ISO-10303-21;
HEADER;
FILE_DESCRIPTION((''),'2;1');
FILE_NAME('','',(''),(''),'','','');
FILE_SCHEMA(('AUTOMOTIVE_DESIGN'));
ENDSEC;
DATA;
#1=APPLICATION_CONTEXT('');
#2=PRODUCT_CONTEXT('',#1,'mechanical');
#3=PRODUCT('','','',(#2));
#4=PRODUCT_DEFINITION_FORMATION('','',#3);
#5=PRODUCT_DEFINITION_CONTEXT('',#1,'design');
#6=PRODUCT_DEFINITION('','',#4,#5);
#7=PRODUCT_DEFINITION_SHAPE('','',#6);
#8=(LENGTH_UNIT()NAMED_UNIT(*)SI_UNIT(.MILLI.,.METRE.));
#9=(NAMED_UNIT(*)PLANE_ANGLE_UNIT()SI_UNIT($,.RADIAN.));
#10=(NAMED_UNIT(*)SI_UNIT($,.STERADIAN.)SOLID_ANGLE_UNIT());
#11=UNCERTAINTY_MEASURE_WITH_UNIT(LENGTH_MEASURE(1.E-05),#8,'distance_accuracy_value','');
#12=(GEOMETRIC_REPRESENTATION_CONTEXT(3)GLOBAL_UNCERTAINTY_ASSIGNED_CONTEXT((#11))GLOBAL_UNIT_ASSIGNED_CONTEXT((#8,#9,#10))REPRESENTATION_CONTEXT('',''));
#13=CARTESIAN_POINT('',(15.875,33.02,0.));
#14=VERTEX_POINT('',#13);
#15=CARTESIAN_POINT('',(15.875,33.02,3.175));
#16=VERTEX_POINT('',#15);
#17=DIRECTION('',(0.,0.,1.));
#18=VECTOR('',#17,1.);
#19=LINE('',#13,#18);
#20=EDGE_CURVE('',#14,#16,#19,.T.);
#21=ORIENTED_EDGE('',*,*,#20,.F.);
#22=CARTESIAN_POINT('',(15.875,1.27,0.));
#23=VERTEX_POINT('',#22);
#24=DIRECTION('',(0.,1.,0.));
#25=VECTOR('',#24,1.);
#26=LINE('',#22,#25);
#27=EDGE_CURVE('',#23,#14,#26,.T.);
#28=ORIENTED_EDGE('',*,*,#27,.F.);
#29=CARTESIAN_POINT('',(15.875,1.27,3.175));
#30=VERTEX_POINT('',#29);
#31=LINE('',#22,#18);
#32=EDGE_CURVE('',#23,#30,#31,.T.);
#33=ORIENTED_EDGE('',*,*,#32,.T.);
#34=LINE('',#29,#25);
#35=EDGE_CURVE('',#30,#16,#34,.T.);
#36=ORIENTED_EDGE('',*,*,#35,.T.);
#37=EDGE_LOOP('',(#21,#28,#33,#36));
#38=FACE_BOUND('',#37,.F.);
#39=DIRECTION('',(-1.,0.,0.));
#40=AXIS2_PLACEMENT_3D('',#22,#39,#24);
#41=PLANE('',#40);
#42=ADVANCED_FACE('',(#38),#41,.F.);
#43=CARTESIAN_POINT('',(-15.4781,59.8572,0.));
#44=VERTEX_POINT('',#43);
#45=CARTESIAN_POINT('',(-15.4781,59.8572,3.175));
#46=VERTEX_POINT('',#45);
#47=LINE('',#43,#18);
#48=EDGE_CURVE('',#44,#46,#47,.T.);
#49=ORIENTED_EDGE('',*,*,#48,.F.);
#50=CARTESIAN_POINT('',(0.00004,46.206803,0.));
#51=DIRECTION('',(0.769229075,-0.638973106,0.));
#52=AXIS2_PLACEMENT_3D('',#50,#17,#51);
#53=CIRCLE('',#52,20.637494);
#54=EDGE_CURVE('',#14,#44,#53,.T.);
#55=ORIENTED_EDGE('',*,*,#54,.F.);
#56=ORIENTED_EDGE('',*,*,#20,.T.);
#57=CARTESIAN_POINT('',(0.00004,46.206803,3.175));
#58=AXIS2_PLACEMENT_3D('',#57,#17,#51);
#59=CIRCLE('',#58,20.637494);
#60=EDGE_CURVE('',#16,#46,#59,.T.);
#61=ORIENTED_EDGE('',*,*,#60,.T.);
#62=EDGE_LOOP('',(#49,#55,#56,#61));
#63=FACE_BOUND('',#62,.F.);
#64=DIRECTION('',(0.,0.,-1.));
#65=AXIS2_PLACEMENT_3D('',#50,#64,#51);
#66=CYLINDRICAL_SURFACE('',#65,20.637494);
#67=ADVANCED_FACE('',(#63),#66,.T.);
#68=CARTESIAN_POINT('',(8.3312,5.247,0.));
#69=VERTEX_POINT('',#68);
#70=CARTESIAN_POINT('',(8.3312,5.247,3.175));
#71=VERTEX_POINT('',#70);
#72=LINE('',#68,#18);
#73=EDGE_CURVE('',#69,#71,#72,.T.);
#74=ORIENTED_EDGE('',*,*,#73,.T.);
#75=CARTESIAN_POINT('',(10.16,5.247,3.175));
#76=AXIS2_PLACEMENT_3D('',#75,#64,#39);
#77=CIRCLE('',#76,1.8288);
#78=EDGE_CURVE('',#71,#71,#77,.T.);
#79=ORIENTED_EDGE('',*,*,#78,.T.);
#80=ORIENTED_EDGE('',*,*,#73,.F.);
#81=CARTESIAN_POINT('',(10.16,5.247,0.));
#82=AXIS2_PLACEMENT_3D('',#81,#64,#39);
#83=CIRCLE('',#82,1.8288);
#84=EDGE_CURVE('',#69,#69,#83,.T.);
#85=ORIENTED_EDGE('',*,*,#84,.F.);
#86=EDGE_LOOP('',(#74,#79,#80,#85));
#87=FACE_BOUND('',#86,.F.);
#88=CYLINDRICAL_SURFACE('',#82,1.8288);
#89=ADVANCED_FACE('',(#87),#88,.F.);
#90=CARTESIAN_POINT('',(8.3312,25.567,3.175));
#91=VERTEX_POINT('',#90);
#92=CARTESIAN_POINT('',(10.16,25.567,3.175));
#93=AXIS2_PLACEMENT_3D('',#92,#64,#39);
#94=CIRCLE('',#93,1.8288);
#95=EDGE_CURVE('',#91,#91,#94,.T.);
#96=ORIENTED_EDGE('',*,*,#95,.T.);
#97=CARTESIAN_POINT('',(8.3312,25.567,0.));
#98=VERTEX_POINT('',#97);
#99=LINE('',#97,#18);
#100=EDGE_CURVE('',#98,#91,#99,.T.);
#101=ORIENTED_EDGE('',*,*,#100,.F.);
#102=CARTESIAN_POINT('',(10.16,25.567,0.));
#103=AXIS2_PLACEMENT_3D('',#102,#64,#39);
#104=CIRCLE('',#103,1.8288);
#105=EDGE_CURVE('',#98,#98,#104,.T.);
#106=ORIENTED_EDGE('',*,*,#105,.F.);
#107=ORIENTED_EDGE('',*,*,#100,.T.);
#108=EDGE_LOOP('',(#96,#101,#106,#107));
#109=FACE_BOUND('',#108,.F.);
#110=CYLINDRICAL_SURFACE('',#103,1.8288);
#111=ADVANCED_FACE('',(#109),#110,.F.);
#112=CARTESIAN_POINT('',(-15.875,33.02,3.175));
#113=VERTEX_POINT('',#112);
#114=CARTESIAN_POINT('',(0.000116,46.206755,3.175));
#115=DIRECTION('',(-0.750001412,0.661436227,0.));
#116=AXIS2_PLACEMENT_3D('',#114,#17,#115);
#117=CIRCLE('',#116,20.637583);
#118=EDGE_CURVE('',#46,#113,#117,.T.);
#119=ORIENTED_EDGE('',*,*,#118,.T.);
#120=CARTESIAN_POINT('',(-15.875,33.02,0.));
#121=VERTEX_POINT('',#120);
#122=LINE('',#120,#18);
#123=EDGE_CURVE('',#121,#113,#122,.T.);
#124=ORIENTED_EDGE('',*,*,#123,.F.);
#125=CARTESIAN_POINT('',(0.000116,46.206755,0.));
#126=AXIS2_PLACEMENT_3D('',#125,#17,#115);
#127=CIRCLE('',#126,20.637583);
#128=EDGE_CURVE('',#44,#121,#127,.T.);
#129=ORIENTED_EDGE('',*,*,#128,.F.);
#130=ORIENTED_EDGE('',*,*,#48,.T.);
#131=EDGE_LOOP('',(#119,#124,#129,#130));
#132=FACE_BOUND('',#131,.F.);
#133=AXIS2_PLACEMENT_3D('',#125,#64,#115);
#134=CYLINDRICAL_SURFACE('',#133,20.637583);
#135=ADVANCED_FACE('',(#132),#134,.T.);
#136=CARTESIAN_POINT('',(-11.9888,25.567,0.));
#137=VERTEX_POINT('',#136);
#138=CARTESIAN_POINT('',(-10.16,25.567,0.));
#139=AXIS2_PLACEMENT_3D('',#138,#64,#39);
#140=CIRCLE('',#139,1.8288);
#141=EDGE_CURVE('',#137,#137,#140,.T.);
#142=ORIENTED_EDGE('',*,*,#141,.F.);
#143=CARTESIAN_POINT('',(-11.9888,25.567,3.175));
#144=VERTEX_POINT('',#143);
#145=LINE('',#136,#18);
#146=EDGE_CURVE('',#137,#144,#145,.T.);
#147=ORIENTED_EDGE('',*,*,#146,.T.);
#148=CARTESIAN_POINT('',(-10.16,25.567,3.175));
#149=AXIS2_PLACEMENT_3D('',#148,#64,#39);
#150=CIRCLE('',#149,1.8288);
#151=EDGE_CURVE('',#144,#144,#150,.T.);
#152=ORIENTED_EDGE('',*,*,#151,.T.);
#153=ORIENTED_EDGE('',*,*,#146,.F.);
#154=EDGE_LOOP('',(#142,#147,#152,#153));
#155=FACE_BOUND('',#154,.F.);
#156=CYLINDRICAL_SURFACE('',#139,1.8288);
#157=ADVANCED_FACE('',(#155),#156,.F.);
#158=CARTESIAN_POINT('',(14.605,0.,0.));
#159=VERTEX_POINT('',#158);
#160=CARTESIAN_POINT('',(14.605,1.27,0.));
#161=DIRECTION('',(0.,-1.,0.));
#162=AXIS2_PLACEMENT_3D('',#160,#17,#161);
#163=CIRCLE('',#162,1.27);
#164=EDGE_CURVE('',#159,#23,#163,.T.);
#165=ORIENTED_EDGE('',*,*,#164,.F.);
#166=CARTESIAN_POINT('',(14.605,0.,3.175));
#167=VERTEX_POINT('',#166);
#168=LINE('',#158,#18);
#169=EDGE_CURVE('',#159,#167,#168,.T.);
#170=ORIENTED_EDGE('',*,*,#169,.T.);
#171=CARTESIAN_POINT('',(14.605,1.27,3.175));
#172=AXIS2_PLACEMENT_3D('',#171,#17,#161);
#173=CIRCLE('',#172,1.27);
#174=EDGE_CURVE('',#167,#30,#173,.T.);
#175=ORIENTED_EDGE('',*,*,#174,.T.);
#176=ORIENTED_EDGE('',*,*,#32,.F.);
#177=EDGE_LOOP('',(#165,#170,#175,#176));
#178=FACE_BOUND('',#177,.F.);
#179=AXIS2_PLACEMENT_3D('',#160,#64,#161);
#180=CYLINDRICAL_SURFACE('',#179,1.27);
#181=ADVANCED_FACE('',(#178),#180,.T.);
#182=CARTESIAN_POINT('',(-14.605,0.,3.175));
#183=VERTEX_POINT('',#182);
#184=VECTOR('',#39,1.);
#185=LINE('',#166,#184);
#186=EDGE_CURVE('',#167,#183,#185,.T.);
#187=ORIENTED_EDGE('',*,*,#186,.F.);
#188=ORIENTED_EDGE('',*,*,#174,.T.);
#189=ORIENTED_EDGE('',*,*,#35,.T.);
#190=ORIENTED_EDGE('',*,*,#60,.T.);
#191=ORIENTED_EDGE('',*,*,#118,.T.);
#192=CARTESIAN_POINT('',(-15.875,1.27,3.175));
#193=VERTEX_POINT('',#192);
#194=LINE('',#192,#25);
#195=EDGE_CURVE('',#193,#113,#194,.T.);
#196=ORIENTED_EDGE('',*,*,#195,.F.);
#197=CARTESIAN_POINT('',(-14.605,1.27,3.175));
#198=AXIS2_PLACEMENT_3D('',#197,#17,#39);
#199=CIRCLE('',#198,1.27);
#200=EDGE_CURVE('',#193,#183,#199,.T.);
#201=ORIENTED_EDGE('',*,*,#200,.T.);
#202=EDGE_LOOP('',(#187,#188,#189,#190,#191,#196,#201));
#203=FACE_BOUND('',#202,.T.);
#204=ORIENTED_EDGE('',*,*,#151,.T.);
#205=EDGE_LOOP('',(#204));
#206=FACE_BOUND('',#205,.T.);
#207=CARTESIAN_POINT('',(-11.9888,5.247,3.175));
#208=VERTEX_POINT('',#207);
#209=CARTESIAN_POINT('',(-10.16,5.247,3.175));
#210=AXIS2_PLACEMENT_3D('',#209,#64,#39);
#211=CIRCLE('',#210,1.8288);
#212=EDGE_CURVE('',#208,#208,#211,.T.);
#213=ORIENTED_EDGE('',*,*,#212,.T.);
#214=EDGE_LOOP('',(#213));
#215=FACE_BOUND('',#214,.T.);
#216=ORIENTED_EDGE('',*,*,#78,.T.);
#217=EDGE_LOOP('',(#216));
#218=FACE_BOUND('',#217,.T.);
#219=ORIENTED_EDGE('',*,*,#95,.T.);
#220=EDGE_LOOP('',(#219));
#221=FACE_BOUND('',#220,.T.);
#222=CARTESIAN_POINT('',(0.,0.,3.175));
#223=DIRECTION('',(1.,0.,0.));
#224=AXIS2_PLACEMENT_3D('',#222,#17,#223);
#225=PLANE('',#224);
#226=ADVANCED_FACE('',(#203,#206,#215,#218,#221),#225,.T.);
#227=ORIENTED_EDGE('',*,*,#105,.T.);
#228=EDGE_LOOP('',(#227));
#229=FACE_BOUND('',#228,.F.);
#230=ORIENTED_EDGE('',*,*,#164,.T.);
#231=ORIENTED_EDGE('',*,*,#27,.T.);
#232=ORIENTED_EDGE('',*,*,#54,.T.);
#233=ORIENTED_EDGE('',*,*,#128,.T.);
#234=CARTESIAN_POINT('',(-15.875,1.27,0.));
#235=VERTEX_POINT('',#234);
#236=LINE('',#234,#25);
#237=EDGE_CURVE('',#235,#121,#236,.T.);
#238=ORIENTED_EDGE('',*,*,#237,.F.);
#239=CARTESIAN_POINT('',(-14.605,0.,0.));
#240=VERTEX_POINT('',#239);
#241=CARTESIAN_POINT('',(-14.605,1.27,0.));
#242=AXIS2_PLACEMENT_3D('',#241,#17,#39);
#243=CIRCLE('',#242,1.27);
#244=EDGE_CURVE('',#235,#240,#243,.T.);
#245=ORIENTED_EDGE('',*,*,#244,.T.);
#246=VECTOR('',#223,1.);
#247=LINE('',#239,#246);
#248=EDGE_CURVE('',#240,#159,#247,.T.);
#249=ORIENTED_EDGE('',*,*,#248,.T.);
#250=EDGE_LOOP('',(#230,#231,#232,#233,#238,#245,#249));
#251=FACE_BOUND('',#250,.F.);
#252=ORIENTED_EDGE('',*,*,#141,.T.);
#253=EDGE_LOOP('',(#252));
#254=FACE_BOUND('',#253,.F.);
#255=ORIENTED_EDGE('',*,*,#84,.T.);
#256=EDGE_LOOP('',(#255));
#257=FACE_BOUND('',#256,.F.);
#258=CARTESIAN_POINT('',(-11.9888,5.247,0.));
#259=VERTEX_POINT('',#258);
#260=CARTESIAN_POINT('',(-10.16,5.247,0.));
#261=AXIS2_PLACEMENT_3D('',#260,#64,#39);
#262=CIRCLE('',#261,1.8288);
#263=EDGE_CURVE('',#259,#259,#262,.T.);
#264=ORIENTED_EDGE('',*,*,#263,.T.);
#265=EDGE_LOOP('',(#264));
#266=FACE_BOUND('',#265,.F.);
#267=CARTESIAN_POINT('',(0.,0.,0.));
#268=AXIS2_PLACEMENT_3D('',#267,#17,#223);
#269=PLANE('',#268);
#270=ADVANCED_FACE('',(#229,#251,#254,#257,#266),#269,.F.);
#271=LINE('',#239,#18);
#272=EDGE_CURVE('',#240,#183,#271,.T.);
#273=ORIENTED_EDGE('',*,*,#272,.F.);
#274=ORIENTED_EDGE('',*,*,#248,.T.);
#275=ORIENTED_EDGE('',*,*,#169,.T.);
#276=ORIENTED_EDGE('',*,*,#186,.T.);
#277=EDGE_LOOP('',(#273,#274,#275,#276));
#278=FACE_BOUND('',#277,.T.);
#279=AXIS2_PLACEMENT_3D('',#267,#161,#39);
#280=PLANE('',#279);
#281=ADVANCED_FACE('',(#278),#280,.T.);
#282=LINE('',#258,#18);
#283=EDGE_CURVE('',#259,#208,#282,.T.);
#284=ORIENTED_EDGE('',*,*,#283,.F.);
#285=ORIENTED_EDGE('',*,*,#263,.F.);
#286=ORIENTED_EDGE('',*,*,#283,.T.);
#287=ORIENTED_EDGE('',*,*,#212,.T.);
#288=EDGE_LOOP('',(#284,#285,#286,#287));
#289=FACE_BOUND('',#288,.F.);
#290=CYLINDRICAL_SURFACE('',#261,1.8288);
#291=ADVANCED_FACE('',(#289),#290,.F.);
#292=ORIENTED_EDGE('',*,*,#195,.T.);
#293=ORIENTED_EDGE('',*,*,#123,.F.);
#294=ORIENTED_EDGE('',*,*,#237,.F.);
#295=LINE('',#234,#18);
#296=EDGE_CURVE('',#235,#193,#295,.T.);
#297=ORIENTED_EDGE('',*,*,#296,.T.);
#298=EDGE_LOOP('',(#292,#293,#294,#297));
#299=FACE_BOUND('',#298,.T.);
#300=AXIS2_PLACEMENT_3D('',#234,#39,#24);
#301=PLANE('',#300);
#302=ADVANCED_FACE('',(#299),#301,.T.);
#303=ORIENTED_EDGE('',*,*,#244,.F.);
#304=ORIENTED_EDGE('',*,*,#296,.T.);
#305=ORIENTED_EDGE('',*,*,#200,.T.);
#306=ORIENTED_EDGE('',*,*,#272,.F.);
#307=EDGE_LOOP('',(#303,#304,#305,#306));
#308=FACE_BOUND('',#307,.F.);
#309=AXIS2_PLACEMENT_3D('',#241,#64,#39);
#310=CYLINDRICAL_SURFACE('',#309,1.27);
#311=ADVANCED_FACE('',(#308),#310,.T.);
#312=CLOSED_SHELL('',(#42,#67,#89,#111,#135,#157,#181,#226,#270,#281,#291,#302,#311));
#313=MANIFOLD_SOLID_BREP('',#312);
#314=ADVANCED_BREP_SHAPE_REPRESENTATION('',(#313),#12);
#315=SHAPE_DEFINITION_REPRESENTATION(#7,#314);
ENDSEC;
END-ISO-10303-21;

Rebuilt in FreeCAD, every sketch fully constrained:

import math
import FreeCAD as App
import Part
import Sketcher
from FreeCAD import Vector
Q = App.Units.Quantity

doc = App.newDocument("Part")
body = doc.addObject("PartDesign::Body", "Body")

sketch1 = doc.addObject("Sketcher::SketchObject", "Sketch")
body.addObject(sketch1)
sketch1.AttachmentSupport = (doc.XY_Plane, [""])
sketch1.MapMode = "FlatFace"
sketch1.addGeometry([
    Part.LineSegment(Vector(-14.6, 0, 0), Vector(14.6, 0, 0)),
    Part.ArcOfCircle(Part.Circle(Vector(14.6, 1.3, 0), Vector(0, 0, 1), 1.3), math.radians(-90), math.radians(0)),
    Part.LineSegment(Vector(15.9, 1.3, 0), Vector(15.9, 33, 0)),
    Part.ArcOfCircle(Part.Circle(Vector(0, 46.2, 0), Vector(0, 0, 1), 20.6), math.radians(-40), math.radians(139)),
    Part.ArcOfCircle(Part.Circle(Vector(0, 46.2, 0), Vector(0, 0, 1), 20.6), math.radians(139), math.radians(220)),
    Part.LineSegment(Vector(-15.9, 33, 0), Vector(-15.9, 1.3, 0)),
    Part.ArcOfCircle(Part.Circle(Vector(-14.6, 1.3, 0), Vector(0, 0, 1), 1.3), math.radians(180), math.radians(270)),
], False)
sketch1.addConstraint([
    Sketcher.Constraint("Tangent", 0, 2, 1, 1),
    Sketcher.Constraint("Tangent", 1, 2, 2, 1),
    Sketcher.Constraint("Coincident", 2, 2, 3, 1),
    Sketcher.Constraint("Tangent", 3, 2, 4, 1),
    Sketcher.Constraint("Coincident", 4, 2, 5, 1),
    Sketcher.Constraint("Tangent", 5, 2, 6, 1),
    Sketcher.Constraint("Tangent", 6, 2, 0, 1),
    Sketcher.Constraint("Horizontal", 0),
    Sketcher.Constraint("Vertical", 2),
    Sketcher.Constraint("Vertical", 5),
    Sketcher.Constraint("Equal", 3, 4),
    Sketcher.Constraint("Equal", 1, 6),
    Sketcher.Constraint("Symmetric", 0, 2, 6, 2, -1, 1),
    Sketcher.Constraint("PointOnObject", 3, 3, -2),
    Sketcher.Constraint("Radius", 1, Q("0.05 in")),
    Sketcher.Constraint("Radius", 3, Q("0.8125 in")),
    Sketcher.Constraint("DistanceY", 2, 1, 2, 2, Q("1.25 in")),
    Sketcher.Constraint("DistanceX", 4, 2, 2, 2, Q("1.25 in")),
    Sketcher.Constraint("DistanceX", 3, 2, -1, 1, Q("0.6093701 in")),
])
pad1 = doc.addObject("PartDesign::Pad", "Pad")
body.addObject(pad1)
pad1.Profile = sketch1
pad1.Length = Q("0.125 in")

sketch2 = doc.addObject("Sketcher::SketchObject", "Sketch001")
body.addObject(sketch2)
sketch2.AttachmentSupport = (doc.XY_Plane, [""])
sketch2.MapMode = "FlatFace"
sketch2.addGeometry([
    Part.Circle(Vector(10.2, 25.6, 0), Vector(0, 0, 1), 1.8),
    Part.Circle(Vector(-10.2, 25.6, 0), Vector(0, 0, 1), 1.8),
    Part.Circle(Vector(10.2, 5.2, 0), Vector(0, 0, 1), 1.8),
    Part.Circle(Vector(-10.2, 5.2, 0), Vector(0, 0, 1), 1.8),
], False)
sketch2.addConstraint([
    Sketcher.Constraint("Equal", 0, 1),
    Sketcher.Constraint("Equal", 1, 2),
    Sketcher.Constraint("Equal", 2, 3),
    Sketcher.Constraint("Symmetric", 0, 3, 1, 3, -2),
    Sketcher.Constraint("Symmetric", 2, 3, 3, 3, -2),
    Sketcher.Constraint("Vertical", 0, 3, 2, 3),
    Sketcher.Constraint("Diameter", 0, Q("0.144 in")),
    Sketcher.Constraint("DistanceX", 1, 3, 0, 3, Q("0.8 in")),
    Sketcher.Constraint("DistanceY", 2, 3, 0, 3, Q("0.8 in")),
    Sketcher.Constraint("DistanceY", -1, 1, 0, 3, Q("25.567 mm")),
])
pocket1 = doc.addObject("PartDesign::Pocket", "Pocket")
body.addObject(pocket1)
pocket1.Profile = sketch2
pocket1.Type = "ThroughAll"
pocket1.Reversed = True

doc.recompute()
